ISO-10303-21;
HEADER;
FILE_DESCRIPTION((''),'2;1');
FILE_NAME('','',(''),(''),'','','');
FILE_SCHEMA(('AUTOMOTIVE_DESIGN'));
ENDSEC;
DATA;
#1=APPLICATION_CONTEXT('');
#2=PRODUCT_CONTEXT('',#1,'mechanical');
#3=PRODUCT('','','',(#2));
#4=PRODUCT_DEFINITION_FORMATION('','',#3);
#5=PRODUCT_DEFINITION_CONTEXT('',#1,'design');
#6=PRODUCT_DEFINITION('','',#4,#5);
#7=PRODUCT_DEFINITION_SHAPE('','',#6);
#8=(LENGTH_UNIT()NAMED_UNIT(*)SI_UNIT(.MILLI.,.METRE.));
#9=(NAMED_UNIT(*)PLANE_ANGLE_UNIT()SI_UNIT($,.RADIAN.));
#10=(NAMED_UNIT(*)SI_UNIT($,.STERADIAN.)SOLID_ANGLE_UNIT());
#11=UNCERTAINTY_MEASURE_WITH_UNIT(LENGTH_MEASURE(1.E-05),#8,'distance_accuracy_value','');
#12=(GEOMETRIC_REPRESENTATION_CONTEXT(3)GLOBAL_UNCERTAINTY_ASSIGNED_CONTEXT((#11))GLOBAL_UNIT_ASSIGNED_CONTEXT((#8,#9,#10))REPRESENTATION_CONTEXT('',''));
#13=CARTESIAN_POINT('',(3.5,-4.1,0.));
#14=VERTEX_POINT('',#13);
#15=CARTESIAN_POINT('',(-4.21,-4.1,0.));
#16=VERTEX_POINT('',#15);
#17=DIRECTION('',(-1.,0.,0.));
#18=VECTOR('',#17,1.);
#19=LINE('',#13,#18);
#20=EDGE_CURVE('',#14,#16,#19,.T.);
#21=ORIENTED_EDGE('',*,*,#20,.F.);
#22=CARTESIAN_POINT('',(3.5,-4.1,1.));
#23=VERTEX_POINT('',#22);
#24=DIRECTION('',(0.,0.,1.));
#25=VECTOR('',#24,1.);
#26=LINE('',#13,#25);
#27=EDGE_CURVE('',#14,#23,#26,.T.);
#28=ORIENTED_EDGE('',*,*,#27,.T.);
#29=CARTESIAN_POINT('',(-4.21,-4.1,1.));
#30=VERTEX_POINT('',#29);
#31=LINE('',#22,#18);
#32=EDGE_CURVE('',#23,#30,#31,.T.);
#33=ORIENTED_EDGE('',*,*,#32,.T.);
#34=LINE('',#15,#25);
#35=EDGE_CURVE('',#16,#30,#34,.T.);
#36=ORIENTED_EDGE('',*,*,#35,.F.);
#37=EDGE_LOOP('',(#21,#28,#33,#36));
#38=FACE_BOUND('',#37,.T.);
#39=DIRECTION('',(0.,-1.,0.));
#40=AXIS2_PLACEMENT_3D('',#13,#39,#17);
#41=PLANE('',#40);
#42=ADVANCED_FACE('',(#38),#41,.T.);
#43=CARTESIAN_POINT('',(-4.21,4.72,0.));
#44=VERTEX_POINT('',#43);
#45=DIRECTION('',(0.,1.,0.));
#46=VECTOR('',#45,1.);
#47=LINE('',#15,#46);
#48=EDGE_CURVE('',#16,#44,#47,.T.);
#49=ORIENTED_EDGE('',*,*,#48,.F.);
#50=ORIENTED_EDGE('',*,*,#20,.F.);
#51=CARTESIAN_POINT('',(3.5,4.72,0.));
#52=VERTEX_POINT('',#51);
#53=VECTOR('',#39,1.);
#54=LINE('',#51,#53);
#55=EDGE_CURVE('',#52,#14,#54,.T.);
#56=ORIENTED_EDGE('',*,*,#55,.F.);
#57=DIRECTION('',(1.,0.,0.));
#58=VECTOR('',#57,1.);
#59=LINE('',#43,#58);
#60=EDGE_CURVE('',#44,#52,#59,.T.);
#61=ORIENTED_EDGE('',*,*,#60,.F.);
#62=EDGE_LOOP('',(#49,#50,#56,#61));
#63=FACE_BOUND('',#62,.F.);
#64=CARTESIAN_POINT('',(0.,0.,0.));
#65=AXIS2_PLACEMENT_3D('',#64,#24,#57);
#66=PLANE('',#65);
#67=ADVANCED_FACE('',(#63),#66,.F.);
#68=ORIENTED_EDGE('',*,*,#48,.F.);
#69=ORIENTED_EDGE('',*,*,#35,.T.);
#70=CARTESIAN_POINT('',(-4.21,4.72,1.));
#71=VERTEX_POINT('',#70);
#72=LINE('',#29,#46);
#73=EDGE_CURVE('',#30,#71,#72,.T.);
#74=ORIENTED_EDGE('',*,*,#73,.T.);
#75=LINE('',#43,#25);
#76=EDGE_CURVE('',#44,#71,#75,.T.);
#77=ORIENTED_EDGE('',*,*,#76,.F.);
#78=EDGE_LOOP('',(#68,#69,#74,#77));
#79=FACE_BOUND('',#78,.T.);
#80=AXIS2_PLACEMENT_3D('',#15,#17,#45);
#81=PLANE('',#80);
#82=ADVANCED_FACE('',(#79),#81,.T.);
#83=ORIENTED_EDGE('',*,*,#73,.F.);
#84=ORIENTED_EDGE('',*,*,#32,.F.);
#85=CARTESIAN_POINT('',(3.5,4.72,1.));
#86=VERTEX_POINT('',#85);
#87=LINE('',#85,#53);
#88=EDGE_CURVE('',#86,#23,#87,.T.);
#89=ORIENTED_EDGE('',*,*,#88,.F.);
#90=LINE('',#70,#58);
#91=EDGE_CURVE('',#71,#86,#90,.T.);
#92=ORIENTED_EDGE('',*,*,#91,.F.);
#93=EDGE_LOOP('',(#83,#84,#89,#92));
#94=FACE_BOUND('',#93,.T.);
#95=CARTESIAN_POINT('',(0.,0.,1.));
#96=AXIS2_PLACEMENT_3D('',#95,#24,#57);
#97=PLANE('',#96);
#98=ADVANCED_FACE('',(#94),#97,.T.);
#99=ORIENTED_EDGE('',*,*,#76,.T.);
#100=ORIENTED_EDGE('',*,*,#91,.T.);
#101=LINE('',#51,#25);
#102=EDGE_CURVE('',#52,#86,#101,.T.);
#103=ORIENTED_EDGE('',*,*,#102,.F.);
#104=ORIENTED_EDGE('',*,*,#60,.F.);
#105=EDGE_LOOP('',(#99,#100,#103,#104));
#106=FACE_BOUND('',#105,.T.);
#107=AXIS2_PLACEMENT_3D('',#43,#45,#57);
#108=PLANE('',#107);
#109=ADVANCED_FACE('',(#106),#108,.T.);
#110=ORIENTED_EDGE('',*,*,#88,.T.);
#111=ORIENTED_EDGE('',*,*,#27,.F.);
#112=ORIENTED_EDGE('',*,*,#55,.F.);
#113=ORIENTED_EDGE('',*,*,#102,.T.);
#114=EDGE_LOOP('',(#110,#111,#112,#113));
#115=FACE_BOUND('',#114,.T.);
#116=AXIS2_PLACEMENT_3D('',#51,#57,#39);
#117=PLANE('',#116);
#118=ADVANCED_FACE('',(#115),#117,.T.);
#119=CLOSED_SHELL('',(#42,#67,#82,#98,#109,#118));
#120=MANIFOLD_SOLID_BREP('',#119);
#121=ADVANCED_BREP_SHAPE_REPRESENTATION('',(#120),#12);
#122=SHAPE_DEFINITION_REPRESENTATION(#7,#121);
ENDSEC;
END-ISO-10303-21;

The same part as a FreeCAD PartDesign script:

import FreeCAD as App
import Part
import Sketcher
Q = App.Units.Quantity

doc = App.newDocument("Part")
body = doc.addObject("PartDesign::Body", "Body")

sketch1 = body.newObject("Sketcher::SketchObject", "Sketch")
sketch1.AttachmentSupport = (doc.getObject("XY_Plane"), [""])
sketch1.MapMode = "FlatFace"
sketch1.addGeometry([
    Part.LineSegment(App.Vector(-4, 5, 0), App.Vector(-4, -4, 0)),
    Part.LineSegment(App.Vector(-4, -4, 0), App.Vector(4, -4, 0)),
    Part.LineSegment(App.Vector(4, -4, 0), App.Vector(4, 5, 0)),
    Part.LineSegment(App.Vector(4, 5, 0), App.Vector(-4, 5, 0)),
], False)
sketch1.addConstraint([
    Sketcher.Constraint("Coincident", 0, 2, 1, 1),
    Sketcher.Constraint("Coincident", 1, 2, 2, 1),
    Sketcher.Constraint("Coincident", 2, 2, 3, 1),
    Sketcher.Constraint("Coincident", 3, 2, 0, 1),
    Sketcher.Constraint("Vertical", 0),
    Sketcher.Constraint("Horizontal", 1),
    Sketcher.Constraint("Vertical", 2),
    Sketcher.Constraint("Horizontal", 3),
    Sketcher.Constraint("DistanceX", 1, 1, 1, 2, Q("7.71 mm")),
    Sketcher.Constraint("DistanceY", 0, 2, 0, 1, Q("8.82 mm")),
    Sketcher.Constraint("DistanceY", 0, 2, -1, 1, Q("4.1 mm")),
    Sketcher.Constraint("DistanceX", -1, 1, 1, 2, Q("3.5 mm")),
])
pad1 = body.newObject("PartDesign::Pad", "Pad")
pad1.Profile = sketch1
pad1.Length = 1

doc.recompute()
